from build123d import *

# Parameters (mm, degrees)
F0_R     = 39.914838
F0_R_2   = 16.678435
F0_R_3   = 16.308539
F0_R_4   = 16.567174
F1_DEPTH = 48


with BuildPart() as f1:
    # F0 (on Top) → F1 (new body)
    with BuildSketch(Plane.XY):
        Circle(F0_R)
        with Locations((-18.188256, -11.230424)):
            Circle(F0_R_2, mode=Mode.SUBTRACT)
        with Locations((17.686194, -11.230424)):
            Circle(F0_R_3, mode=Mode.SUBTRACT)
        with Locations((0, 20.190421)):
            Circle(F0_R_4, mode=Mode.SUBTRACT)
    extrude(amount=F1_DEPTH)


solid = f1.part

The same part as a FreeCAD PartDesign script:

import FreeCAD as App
import Part
import Sketcher

doc = App.newDocument("Part")
body = doc.addObject("PartDesign::Body", "Body")

sketch1 = body.newObject("Sketcher::SketchObject", "Sketch")
sketch1.AttachmentSupport = (doc.getObject("XY_Plane"), [""])
sketch1.MapMode = "FlatFace"
sketch1.addGeometry(Part.Circle(App.Vector(0, 0, 0), App.Vector(0, 0, 1), 40), False)
sketch1.addGeometry(Part.Circle(App.Vector(-18, -11, 0), App.Vector(0, 0, 1), 17), False)
sketch1.addGeometry(Part.Circle(App.Vector(18, -11, 0), App.Vector(0, 0, 1), 16), False)
sketch1.addGeometry(Part.Circle(App.Vector(0, 20, 0), App.Vector(0, 0, 1), 17), False)
sketch1.addConstraint(Sketcher.Constraint("Coincident", 0, 3, -1, 1))
sketch1.addConstraint(Sketcher.Constraint("PointOnObject", 3, 3, -2))
sketch1.addConstraint(Sketcher.Constraint("Horizontal", 1, 3, 2, 3))
sketch1.addConstraint(Sketcher.Constraint("Diameter", 1, 33.35687))
sketch1.addConstraint(Sketcher.Constraint("Diameter", 3, 33.134348))
sketch1.addConstraint(Sketcher.Constraint("Diameter", 0, 79.829676))
sketch1.addConstraint(Sketcher.Constraint("Diameter", 2, 32.617078))
sketch1.addConstraint(Sketcher.Constraint("DistanceY", -1, 1, 3, 3, 20.190421))
sketch1.addConstraint(Sketcher.Constraint("DistanceX", 1, 3, 2, 3, 35.87445))
sketch1.addConstraint(Sketcher.Constraint("DistanceX", 1, 3, -1, 1, 18.188256))
sketch1.addConstraint(Sketcher.Constraint("DistanceY", 1, 3, -1, 1, 11.230424))
pad1 = body.newObject("PartDesign::Pad", "Pad")
pad1.Profile = sketch1
pad1.Length = 48

doc.recompute()
